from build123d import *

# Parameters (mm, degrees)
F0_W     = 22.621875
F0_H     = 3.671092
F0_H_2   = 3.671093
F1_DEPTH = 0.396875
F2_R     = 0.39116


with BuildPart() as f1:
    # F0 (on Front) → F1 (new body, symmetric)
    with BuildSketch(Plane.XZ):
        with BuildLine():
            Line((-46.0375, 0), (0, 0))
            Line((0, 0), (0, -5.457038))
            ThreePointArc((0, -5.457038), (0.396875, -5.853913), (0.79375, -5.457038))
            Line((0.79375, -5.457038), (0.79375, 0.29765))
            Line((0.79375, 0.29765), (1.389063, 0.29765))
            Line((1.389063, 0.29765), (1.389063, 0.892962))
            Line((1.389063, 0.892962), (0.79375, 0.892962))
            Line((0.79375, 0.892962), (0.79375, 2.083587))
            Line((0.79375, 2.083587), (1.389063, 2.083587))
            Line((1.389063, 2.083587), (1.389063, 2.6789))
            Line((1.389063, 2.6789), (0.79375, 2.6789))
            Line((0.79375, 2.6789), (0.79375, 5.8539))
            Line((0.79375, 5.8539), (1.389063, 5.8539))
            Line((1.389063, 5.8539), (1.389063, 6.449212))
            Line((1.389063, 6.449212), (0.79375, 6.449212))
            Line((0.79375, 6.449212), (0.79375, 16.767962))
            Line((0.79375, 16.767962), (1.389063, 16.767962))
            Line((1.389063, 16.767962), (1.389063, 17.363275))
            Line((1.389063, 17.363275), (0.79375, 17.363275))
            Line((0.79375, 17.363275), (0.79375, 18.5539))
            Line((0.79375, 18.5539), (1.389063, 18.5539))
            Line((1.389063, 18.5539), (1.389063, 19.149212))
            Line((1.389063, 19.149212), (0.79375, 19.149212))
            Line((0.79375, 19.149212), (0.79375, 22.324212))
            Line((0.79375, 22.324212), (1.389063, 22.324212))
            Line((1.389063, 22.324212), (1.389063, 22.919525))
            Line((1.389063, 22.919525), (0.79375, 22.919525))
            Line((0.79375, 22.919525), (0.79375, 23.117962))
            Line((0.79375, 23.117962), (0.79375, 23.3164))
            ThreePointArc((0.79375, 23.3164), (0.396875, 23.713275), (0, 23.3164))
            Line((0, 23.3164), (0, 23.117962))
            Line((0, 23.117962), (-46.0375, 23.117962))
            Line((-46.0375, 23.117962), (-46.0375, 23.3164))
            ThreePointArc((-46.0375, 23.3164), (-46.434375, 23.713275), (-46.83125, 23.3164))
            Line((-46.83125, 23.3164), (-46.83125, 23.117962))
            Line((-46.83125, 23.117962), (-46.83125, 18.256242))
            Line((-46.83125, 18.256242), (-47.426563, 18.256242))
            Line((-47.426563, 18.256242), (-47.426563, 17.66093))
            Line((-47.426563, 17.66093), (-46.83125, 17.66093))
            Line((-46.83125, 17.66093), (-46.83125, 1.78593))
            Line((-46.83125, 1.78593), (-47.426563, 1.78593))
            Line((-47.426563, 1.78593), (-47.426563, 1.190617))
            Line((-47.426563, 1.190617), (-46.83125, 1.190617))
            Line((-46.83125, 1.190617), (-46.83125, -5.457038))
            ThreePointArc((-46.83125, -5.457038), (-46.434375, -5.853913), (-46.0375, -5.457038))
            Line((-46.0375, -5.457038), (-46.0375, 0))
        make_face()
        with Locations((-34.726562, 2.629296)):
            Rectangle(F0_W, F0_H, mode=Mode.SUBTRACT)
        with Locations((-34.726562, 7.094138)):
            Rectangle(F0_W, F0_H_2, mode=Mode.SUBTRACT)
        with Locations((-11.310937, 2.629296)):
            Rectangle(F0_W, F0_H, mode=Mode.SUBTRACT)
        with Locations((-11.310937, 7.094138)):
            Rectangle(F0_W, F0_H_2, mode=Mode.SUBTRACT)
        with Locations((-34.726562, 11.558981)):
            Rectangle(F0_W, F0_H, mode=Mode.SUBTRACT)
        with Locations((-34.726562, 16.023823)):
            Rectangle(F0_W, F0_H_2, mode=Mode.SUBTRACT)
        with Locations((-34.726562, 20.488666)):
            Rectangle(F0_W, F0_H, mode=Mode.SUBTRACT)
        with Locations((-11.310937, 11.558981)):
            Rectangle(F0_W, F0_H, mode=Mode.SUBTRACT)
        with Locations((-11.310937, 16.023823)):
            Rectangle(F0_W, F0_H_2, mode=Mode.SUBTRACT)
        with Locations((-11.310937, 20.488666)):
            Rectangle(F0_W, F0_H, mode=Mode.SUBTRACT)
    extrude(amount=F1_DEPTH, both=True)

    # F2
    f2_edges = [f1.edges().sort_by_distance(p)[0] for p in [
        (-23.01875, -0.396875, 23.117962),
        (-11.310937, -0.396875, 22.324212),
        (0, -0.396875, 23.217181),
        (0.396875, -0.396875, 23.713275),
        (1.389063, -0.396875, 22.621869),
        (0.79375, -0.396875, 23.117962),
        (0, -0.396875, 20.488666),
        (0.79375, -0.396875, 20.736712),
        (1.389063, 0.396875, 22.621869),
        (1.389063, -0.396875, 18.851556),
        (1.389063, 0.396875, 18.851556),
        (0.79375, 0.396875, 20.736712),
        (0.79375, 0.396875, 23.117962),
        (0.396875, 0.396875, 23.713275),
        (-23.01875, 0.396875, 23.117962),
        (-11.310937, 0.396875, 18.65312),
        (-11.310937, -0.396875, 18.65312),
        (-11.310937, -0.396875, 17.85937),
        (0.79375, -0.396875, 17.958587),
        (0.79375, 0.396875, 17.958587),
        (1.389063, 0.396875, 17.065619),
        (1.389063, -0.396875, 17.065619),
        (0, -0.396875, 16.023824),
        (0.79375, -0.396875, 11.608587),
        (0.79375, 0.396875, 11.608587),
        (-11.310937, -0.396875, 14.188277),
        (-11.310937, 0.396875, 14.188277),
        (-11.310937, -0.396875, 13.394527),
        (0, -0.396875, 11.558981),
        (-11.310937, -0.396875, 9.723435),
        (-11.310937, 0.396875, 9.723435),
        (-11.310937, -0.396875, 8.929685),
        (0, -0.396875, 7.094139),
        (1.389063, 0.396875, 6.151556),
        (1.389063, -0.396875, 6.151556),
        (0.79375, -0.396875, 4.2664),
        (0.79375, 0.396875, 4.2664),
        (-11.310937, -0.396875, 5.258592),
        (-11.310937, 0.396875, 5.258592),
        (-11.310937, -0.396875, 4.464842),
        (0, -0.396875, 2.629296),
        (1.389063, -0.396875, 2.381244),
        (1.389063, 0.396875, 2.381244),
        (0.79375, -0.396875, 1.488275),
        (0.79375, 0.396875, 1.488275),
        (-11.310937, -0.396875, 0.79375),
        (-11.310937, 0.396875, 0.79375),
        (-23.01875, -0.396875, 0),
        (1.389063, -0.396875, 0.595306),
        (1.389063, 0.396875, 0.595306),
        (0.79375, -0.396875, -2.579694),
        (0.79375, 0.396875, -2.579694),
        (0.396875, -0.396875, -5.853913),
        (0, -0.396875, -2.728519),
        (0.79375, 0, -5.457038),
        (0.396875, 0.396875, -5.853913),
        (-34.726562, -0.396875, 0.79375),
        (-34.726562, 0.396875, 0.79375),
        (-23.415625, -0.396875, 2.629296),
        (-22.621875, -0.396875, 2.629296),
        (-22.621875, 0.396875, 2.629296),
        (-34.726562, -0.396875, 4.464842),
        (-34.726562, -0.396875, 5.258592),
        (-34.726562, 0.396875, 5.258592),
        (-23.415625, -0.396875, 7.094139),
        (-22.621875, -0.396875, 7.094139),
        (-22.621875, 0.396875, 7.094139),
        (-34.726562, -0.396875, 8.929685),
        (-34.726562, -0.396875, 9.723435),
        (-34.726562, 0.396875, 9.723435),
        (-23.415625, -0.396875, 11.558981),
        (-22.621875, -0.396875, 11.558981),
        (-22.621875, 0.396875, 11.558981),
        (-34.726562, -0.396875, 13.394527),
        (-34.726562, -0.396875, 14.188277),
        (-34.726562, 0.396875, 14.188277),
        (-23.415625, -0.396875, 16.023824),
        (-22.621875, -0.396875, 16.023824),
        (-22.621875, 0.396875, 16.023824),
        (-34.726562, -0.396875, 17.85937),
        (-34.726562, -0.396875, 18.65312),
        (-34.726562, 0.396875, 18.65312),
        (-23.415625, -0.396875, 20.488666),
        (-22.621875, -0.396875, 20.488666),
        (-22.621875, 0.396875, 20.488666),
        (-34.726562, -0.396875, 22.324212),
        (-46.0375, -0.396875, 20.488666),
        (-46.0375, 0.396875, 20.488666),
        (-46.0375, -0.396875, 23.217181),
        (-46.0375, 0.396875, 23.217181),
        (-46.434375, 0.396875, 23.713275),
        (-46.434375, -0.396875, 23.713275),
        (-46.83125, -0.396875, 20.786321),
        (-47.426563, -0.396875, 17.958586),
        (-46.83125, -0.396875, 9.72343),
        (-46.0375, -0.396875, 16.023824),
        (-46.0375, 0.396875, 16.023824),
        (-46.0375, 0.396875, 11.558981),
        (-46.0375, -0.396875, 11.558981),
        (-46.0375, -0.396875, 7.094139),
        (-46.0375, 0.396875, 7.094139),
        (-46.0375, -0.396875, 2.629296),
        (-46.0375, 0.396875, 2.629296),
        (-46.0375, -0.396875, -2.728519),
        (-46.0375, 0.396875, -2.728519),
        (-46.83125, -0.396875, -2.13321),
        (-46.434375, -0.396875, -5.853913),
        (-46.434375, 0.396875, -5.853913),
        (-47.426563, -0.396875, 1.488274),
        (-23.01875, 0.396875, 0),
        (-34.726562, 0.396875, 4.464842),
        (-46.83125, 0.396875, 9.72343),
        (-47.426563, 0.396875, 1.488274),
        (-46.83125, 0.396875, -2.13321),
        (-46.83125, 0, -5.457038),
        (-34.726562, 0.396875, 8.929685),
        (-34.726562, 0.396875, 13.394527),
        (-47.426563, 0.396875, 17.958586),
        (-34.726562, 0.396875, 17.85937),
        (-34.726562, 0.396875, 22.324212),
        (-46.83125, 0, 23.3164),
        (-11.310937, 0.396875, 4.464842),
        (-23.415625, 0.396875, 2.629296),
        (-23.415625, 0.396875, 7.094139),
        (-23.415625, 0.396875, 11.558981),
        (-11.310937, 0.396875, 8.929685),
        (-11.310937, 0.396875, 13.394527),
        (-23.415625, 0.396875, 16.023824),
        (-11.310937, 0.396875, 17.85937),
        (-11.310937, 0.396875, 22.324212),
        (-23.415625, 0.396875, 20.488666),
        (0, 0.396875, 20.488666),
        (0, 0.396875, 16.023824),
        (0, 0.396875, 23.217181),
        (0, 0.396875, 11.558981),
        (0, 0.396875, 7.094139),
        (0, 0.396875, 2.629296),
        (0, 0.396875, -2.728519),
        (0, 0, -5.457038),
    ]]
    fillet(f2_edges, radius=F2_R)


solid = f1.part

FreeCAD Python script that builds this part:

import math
import FreeCAD as App
import Part
import Sketcher
from FreeCAD import Vector
Q = App.Units.Quantity


def edges_at(feature, points):
    """Names of the edges that pass closest to the given points."""
    edges = feature.Shape.Edges
    near = lambda p: min(range(len(edges)), key=lambda i: edges[i].distToShape(Part.Vertex(*p))[0])
    return sorted({f"Edge{near(p) + 1}" for p in points})


def add_polygon(sketch, points):
    """Adds a closed chain of lines whose ends are joined by coincident constraints."""
    first, n = sketch.GeometryCount, len(points)
    for a, b in zip(points, points[1:] + points[:1]):
        sketch.addGeometry(Part.LineSegment(App.Vector(*a, 0), App.Vector(*b, 0)), False)
    for i in range(n):
        sketch.addConstraint(Sketcher.Constraint("Coincident", first + i, 2, first + (i + 1) % n, 1))

doc = App.newDocument("Part")
body = doc.addObject("PartDesign::Body", "Body")

# Sketch on XZ plane
sketch1 = doc.addObject("Sketcher::SketchObject", "Sketch")
body.addObject(sketch1)
sketch1.AttachmentSupport = (doc.XZ_Plane, [""])
sketch1.MapMode = "FlatFace"
sketch1.addGeometry(Part.LineSegment(Vector(-46.0375, 0, 0), Vector(0, 0, 0)), False)  # 0
sketch1.addGeometry(Part.LineSegment(Vector(0, 0, 0), Vector(0, -5.457038, 0)), False)  # 1
sketch1.addGeometry(Part.ArcOfCircle(Part.Circle(Vector(0.396875, -5.457038, 0), Vector(0, 0, 1), 0.396875), math.radians(180), math.radians(360)), False)  # 2
sketch1.addGeometry(Part.LineSegment(Vector(0.79375, -5.457038, 0), Vector(0.79375, 0.29765, 0)), False)  # 3
sketch1.addGeometry(Part.LineSegment(Vector(0.79375, 0.29765, 0), Vector(1.389063, 0.29765, 0)), False)  # 4
sketch1.addGeometry(Part.LineSegment(Vector(1.389063, 0.29765, 0), Vector(1.389063, 0.892962, 0)), False)  # 5
sketch1.addGeometry(Part.LineSegment(Vector(1.389063, 0.892962, 0), Vector(0.79375, 0.892962, 0)), False)  # 6
sketch1.addGeometry(Part.LineSegment(Vector(0.79375, 0.892962, 0), Vector(0.79375, 2.083587, 0)), False)  # 7
sketch1.addGeometry(Part.LineSegment(Vector(0.79375, 2.083587, 0), Vector(1.389063, 2.083587, 0)), False)  # 8
sketch1.addGeometry(Part.LineSegment(Vector(1.389063, 2.083587, 0), Vector(1.389063, 2.6789, 0)), False)  # 9
sketch1.addGeometry(Part.LineSegment(Vector(1.389063, 2.6789, 0), Vector(0.79375, 2.6789, 0)), False)  # 10
sketch1.addGeometry(Part.LineSegment(Vector(0.79375, 2.6789, 0), Vector(0.79375, 5.8539, 0)), False)  # 11
sketch1.addGeometry(Part.LineSegment(Vector(0.79375, 5.8539, 0), Vector(1.389063, 5.8539, 0)), False)  # 12
sketch1.addGeometry(Part.LineSegment(Vector(1.389063, 5.8539, 0), Vector(1.389063, 6.449212, 0)), False)  # 13
sketch1.addGeometry(Part.LineSegment(Vector(1.389063, 6.449212, 0), Vector(0.79375, 6.449212, 0)), False)  # 14
sketch1.addGeometry(Part.LineSegment(Vector(0.79375, 6.449212, 0), Vector(0.79375, 16.767962, 0)), False)  # 15
sketch1.addGeometry(Part.LineSegment(Vector(0.79375, 16.767962, 0), Vector(1.389063, 16.767962, 0)), False)  # 16
sketch1.addGeometry(Part.LineSegment(Vector(1.389063, 16.767962, 0), Vector(1.389063, 17.363275, 0)), False)  # 17
sketch1.addGeometry(Part.LineSegment(Vector(1.389063, 17.363275, 0), Vector(0.79375, 17.363275, 0)), False)  # 18
sketch1.addGeometry(Part.LineSegment(Vector(0.79375, 17.363275, 0), Vector(0.79375, 18.5539, 0)), False)  # 19
sketch1.addGeometry(Part.LineSegment(Vector(0.79375, 18.5539, 0), Vector(1.389063, 18.5539, 0)), False)  # 20
sketch1.addGeometry(Part.LineSegment(Vector(1.389063, 18.5539, 0), Vector(1.389063, 19.149212, 0)), False)  # 21
sketch1.addGeometry(Part.LineSegment(Vector(1.389063, 19.149212, 0), Vector(0.79375, 19.149212, 0)), False)  # 22
sketch1.addGeometry(Part.LineSegment(Vector(0.79375, 19.149212, 0), Vector(0.79375, 22.324212, 0)), False)  # 23
sketch1.addGeometry(Part.LineSegment(Vector(0.79375, 22.324212, 0), Vector(1.389063, 22.324212, 0)), False)  # 24
sketch1.addGeometry(Part.LineSegment(Vector(1.389063, 22.324212, 0), Vector(1.389063, 22.919525, 0)), False)  # 25
sketch1.addGeometry(Part.LineSegment(Vector(1.389063, 22.919525, 0), Vector(0.79375, 22.919525, 0)), False)  # 26
sketch1.addGeometry(Part.LineSegment(Vector(0.79375, 22.919525, 0), Vector(0.79375, 23.3164, 0)), False)  # 27
sketch1.addGeometry(Part.ArcOfCircle(Part.Circle(Vector(0.396875, 23.3164, 0), Vector(0, 0, 1), 0.396875), math.radians(0), math.radians(180)), False)  # 28
sketch1.addGeometry(Part.LineSegment(Vector(0, 23.3164, 0), Vector(0, 23.117962, 0)), False)  # 29
sketch1.addGeometry(Part.LineSegment(Vector(0, 23.117962, 0), Vector(-46.0375, 23.117962, 0)), False)  # 30
sketch1.addGeometry(Part.LineSegment(Vector(-46.0375, 23.117962, 0), Vector(-46.0375, 23.3164, 0)), False)  # 31
sketch1.addGeometry(Part.ArcOfCircle(Part.Circle(Vector(-46.434375, 23.3164, 0), Vector(0, 0, 1), 0.396875), math.radians(0), math.radians(180)), False)  # 32
sketch1.addGeometry(Part.LineSegment(Vector(-46.83125, 23.3164, 0), Vector(-46.83125, 18.256242, 0)), False)  # 33
sketch1.addGeometry(Part.LineSegment(Vector(-46.83125, 18.256242, 0), Vector(-47.426563, 18.256242, 0)), False)  # 34
sketch1.addGeometry(Part.LineSegment(Vector(-47.426563, 18.256242, 0), Vector(-47.426563, 17.66093, 0)), False)  # 35
sketch1.addGeometry(Part.LineSegment(Vector(-47.426563, 17.66093, 0), Vector(-46.83125, 17.66093, 0)), False)  # 36
sketch1.addGeometry(Part.LineSegment(Vector(-46.83125, 17.66093, 0), Vector(-46.83125, 1.78593, 0)), False)  # 37
sketch1.addGeometry(Part.LineSegment(Vector(-46.83125, 1.78593, 0), Vector(-47.426563, 1.78593, 0)), False)  # 38
sketch1.addGeometry(Part.LineSegment(Vector(-47.426563, 1.78593, 0), Vector(-47.426563, 1.190617, 0)), False)  # 39
sketch1.addGeometry(Part.LineSegment(Vector(-47.426563, 1.190617, 0), Vector(-46.83125, 1.190617, 0)), False)  # 40
sketch1.addGeometry(Part.LineSegment(Vector(-46.83125, 1.190617, 0), Vector(-46.83125, -5.457038, 0)), False)  # 41
sketch1.addGeometry(Part.ArcOfCircle(Part.Circle(Vector(-46.434375, -5.457038, 0), Vector(0, 0, 1), 0.396875), math.radians(180), math.radians(360)), False)  # 42
sketch1.addGeometry(Part.LineSegment(Vector(-46.0375, -5.457038, 0), Vector(-46.0375, 0, 0)), False)  # 43
add_polygon(sketch1, [(-23.415624, 0.79375), (-46.0375, 0.79375), (-46.0375, 4.464842), (-23.415624, 4.464842)])  # lines 44-47
add_polygon(sketch1, [(-23.415624, 5.258591), (-46.0375, 5.258591), (-46.0375, 8.929685), (-23.415624, 8.929685)])  # lines 48-51
add_polygon(sketch1, [(0, 0.79375), (-22.621875, 0.79375), (-22.621875, 4.464842), (0, 4.464842)])  # lines 52-55
add_polygon(sketch1, [(0, 5.258591), (-22.621875, 5.258591), (-22.621875, 8.929685), (0, 8.929685)])  # lines 56-59
add_polygon(sketch1, [(-23.415624, 9.723435), (-46.0375, 9.723435), (-46.0375, 13.394527), (-23.415624, 13.394527)])  # lines 60-63
add_polygon(sketch1, [(-23.415624, 14.188277), (-46.0375, 14.188277), (-46.0375, 17.859369), (-23.415624, 17.859369)])  # lines 64-67
add_polygon(sketch1, [(-23.415624, 18.65312), (-46.0375, 18.65312), (-46.0375, 22.324212), (-23.415624, 22.324212)])  # lines 68-71
add_polygon(sketch1, [(0, 9.723435), (-22.621875, 9.723435), (-22.621875, 13.394527), (0, 13.394527)])  # lines 72-75
add_polygon(sketch1, [(0, 14.188277), (-22.621875, 14.188277), (-22.621875, 17.859369), (0, 17.859369)])  # lines 76-79
add_polygon(sketch1, [(0, 18.65312), (-22.621875, 18.65312), (-22.621875, 22.324212), (0, 22.324212)])  # lines 80-83
sketch1.addConstraint([
    Sketcher.Constraint("Coincident", 0, 2, 1, 1),
    Sketcher.Constraint("Tangent", 1, 2, 2, 1),
    Sketcher.Constraint("Tangent", 2, 2, 3, 1),
    Sketcher.Constraint("Coincident", 3, 2, 4, 1),
    Sketcher.Constraint("Coincident", 4, 2, 5, 1),
    Sketcher.Constraint("Coincident", 5, 2, 6, 1),
    Sketcher.Constraint("Coincident", 6, 2, 7, 1),
    Sketcher.Constraint("Coincident", 7, 2, 8, 1),
    Sketcher.Constraint("Coincident", 8, 2, 9, 1),
    Sketcher.Constraint("Coincident", 9, 2, 10, 1),
    Sketcher.Constraint("Coincident", 10, 2, 11, 1),
    Sketcher.Constraint("Coincident", 11, 2, 12, 1),
    Sketcher.Constraint("Coincident", 12, 2, 13, 1),
    Sketcher.Constraint("Coincident", 13, 2, 14, 1),
    Sketcher.Constraint("Coincident", 14, 2, 15, 1),
    Sketcher.Constraint("Coincident", 15, 2, 16, 1),
    Sketcher.Constraint("Coincident", 16, 2, 17, 1),
    Sketcher.Constraint("Coincident", 17, 2, 18, 1),
    Sketcher.Constraint("Coincident", 18, 2, 19, 1),
    Sketcher.Constraint("Coincident", 19, 2, 20, 1),
    Sketcher.Constraint("Coincident", 20, 2, 21, 1),
    Sketcher.Constraint("Coincident", 21, 2, 22, 1),
    Sketcher.Constraint("Coincident", 22, 2, 23, 1),
    Sketcher.Constraint("Coincident", 23, 2, 24, 1),
    Sketcher.Constraint("Coincident", 24, 2, 25, 1),
    Sketcher.Constraint("Coincident", 25, 2, 26, 1),
    Sketcher.Constraint("Coincident", 26, 2, 27, 1),
    Sketcher.Constraint("Tangent", 27, 2, 28, 1),
    Sketcher.Constraint("Tangent", 28, 2, 29, 1),
    Sketcher.Constraint("Coincident", 29, 2, 30, 1),
    Sketcher.Constraint("Coincident", 30, 2, 31, 1),
    Sketcher.Constraint("Tangent", 31, 2, 32, 1),
    Sketcher.Constraint("Tangent", 32, 2, 33, 1),
    Sketcher.Constraint("Coincident", 33, 2, 34, 1),
    Sketcher.Constraint("Coincident", 34, 2, 35, 1),
    Sketcher.Constraint("Coincident", 35, 2, 36, 1),
    Sketcher.Constraint("Coincident", 36, 2, 37, 1),
    Sketcher.Constraint("Coincident", 37, 2, 38, 1),
    Sketcher.Constraint("Coincident", 38, 2, 39, 1),
    Sketcher.Constraint("Coincident", 39, 2, 40, 1),
    Sketcher.Constraint("Coincident", 40, 2, 41, 1),
    Sketcher.Constraint("Tangent", 41, 2, 42, 1),
    Sketcher.Constraint("Tangent", 42, 2, 43, 1),
    Sketcher.Constraint("Coincident", 43, 2, 0, 1),
    Sketcher.Constraint("Horizontal", 0),
    Sketcher.Constraint("Vertical", 1),
    Sketcher.Constraint("Vertical", 3),
    Sketcher.Constraint("Horizontal", 4),
    Sketcher.Constraint("Vertical", 5),
    Sketcher.Constraint("Horizontal", 6),
    Sketcher.Constraint("Vertical", 7),
    Sketcher.Constraint("Horizontal", 8),
    Sketcher.Constraint("Vertical", 9),
    Sketcher.Constraint("Horizontal", 10),
    Sketcher.Constraint("Vertical", 11),
    Sketcher.Constraint("Horizontal", 12),
    Sketcher.Constraint("Vertical", 13),
    Sketcher.Constraint("Horizontal", 14),
    Sketcher.Constraint("Vertical", 15),
    Sketcher.Constraint("Horizontal", 16),
    Sketcher.Constraint("Vertical", 17),
    Sketcher.Constraint("Horizontal", 18),
    Sketcher.Constraint("Vertical", 19),
    Sketcher.Constraint("Horizontal", 20),
    Sketcher.Constraint("Vertical", 21),
    Sketcher.Constraint("Horizontal", 22),
    Sketcher.Constraint("Vertical", 23),
    Sketcher.Constraint("Horizontal", 24),
    Sketcher.Constraint("Vertical", 25),
    Sketcher.Constraint("Horizontal", 26),
    Sketcher.Constraint("Vertical", 27),
    Sketcher.Constraint("Vertical", 29),
    Sketcher.Constraint("Horizontal", 30),
    Sketcher.Constraint("Vertical", 31),
    Sketcher.Constraint("Vertical", 33),
    Sketcher.Constraint("Horizontal", 34),
    Sketcher.Constraint("Vertical", 35),
    Sketcher.Constraint("Horizontal", 36),
    Sketcher.Constraint("Vertical", 37),
    Sketcher.Constraint("Horizontal", 38),
    Sketcher.Constraint("Vertical", 39),
    Sketcher.Constraint("Horizontal", 40),
    Sketcher.Constraint("Vertical", 41),
    Sketcher.Constraint("Vertical", 43),
    Sketcher.Constraint("Horizontal", 44),
    Sketcher.Constraint("Vertical", 45),
    Sketcher.Constraint("Horizontal", 46),
    Sketcher.Constraint("Vertical", 47),
    Sketcher.Constraint("Horizontal", 48),
    Sketcher.Constraint("Vertical", 49),
    Sketcher.Constraint("Horizontal", 50),
    Sketcher.Constraint("Vertical", 51),
    Sketcher.Constraint("Horizontal", 52),
    Sketcher.Constraint("Vertical", 53),
    Sketcher.Constraint("Horizontal", 54),
    Sketcher.Constraint("Vertical", 55),
    Sketcher.Constraint("Horizontal", 56),
    Sketcher.Constraint("Vertical", 57),
    Sketcher.Constraint("Horizontal", 58),
    Sketcher.Constraint("Vertical", 59),
    Sketcher.Constraint("Horizontal", 60),
    Sketcher.Constraint("Vertical", 61),
    Sketcher.Constraint("Horizontal", 62),
    Sketcher.Constraint("Vertical", 63),
    Sketcher.Constraint("Horizontal", 64),
    Sketcher.Constraint("Vertical", 65),
    Sketcher.Constraint("Horizontal", 66),
    Sketcher.Constraint("Vertical", 67),
    Sketcher.Constraint("Horizontal", 68),
    Sketcher.Constraint("Vertical", 69),
    Sketcher.Constraint("Horizontal", 70),
    Sketcher.Constraint("Vertical", 71),
    Sketcher.Constraint("Horizontal", 72),
    Sketcher.Constraint("Vertical", 73),
    Sketcher.Constraint("Horizontal", 74),
    Sketcher.Constraint("Vertical", 75),
    Sketcher.Constraint("Horizontal", 76),
    Sketcher.Constraint("Vertical", 77),
    Sketcher.Constraint("Horizontal", 78),
    Sketcher.Constraint("Vertical", 79),
    Sketcher.Constraint("Horizontal", 80),
    Sketcher.Constraint("Vertical", 81),
    Sketcher.Constraint("Horizontal", 82),
    Sketcher.Constraint("Vertical", 83),
    Sketcher.Constraint("Coincident", 0, 2, -1, 1),
    Sketcher.Constraint("Equal", 2, 28),
    Sketcher.Constraint("Equal", 28, 32),
    Sketcher.Constraint("Equal", 32, 42),
    Sketcher.Constraint("PointOnObject", 28, 2, -2),
    Sketcher.Constraint("PointOnObject", 54, 2, -2),
    Sketcher.Constraint("PointOnObject", 58, 2, -2),
    Sketcher.Constraint("PointOnObject", 74, 2, -2),
    Sketcher.Constraint("PointOnObject", 78, 2, -2),
    Sketcher.Constraint("PointOnObject", 82, 2, -2),
    Sketcher.Constraint("Horizontal", 28, 3, 32, 3),
    Sketcher.Constraint("Horizontal", 2, 3, 42, 3),
    Sketcher.Constraint("Horizontal", 47, 2, 52, 2),
    Sketcher.Constraint("Horizontal", 46, 2, 53, 2),
    Sketcher.Constraint("Horizontal", 51, 2, 56, 2),
    Sketcher.Constraint("Horizontal", 50, 2, 57, 2),
    Sketcher.Constraint("Horizontal", 24, 2, 69, 2),
    Sketcher.Constraint("Horizontal", 63, 2, 72, 2),
    Sketcher.Constraint("Horizontal", 62, 2, 73, 2),
    Sketcher.Constraint("Horizontal", 67, 2, 76, 2),
    Sketcher.Constraint("Horizontal", 66, 2, 77, 2),
    Sketcher.Constraint("Horizontal", 71, 2, 80, 2),
    Sketcher.Constraint("Horizontal", 70, 2, 81, 2),
    Sketcher.Constraint("Vertical", 32, 3, 42, 3),
    Sketcher.Constraint("Vertical", 3, 2, 6, 2),
    Sketcher.Constraint("Vertical", 5, 2, 8, 2),
    Sketcher.Constraint("Vertical", 7, 2, 10, 2),
    Sketcher.Constraint("Vertical", 9, 2, 12, 2),
    Sketcher.Constraint("Vertical", 11, 2, 14, 2),
    Sketcher.Constraint("Vertical", 13, 2, 16, 2),
    Sketcher.Constraint("Vertical", 15, 2, 18, 2),
    Sketcher.Constraint("Vertical", 17, 2, 20, 2),
    Sketcher.Constraint("Vertical", 19, 2, 22, 2),
    Sketcher.Constraint("Vertical", 21, 2, 24, 2),
    Sketcher.Constraint("Vertical", 33, 2, 36, 2),
    Sketcher.Constraint("Vertical", 35, 2, 38, 2),
    Sketcher.Constraint("Vertical", 43, 2, 44, 2),
    Sketcher.Constraint("Vertical", 45, 2, 48, 2),
    Sketcher.Constraint("Vertical", 47, 2, 50, 2),
    Sketcher.Constraint("Vertical", 53, 2, 56, 2),
    Sketcher.Constraint("Vertical", 49, 2, 60, 2),
    Sketcher.Constraint("Vertical", 51, 2, 62, 2),
    Sketcher.Constraint("Vertical", 61, 2, 64, 2),
    Sketcher.Constraint("Vertical", 63, 2, 66, 2),
    Sketcher.Constraint("Vertical", 65, 2, 68, 2),
    Sketcher.Constraint("Vertical", 67, 2, 70, 2),
    Sketcher.Constraint("Vertical", 57, 2, 72, 2),
    Sketcher.Constraint("Vertical", 73, 2, 76, 2),
    Sketcher.Constraint("Vertical", 77, 2, 80, 2),
    Sketcher.Constraint("Equal", 26, 34),
    Sketcher.Constraint("Equal", 50, 52),
    Sketcher.Constraint("Equal", 40, 5),
    Sketcher.Constraint("Equal", 5, 9),
    Sketcher.Constraint("Equal", 9, 13),
    Sketcher.Constraint("Equal", 13, 17),
    Sketcher.Constraint("Equal", 7, 19),
    Sketcher.Constraint("Equal", 17, 21),
    Sketcher.Constraint("Equal", 11, 23),
    Sketcher.Constraint("Equal", 21, 25),
    Sketcher.Constraint("Equal", 25, 35),
    Sketcher.Constraint("Equal", 35, 39),
    Sketcher.Constraint("Equal", 47, 49),
    Sketcher.Constraint("Equal", 59, 61),
    Sketcher.Constraint("Equal", 63, 65),
    Sketcher.Constraint("Equal", 67, 69),
    Sketcher.Constraint("Radius", 2, Q("0.015625 in")),
    Sketcher.Constraint("DistanceX", 0, 1, 0, 2, Q("1.8125 in")),
    Sketcher.Constraint("DistanceX", 44, 2, 44, 1, Q("0.890625 in")),
    Sketcher.Constraint("DistanceY", 7, 1, 7, 2, Q("0.046875 in")),
    Sketcher.Constraint("DistanceY", 11, 1, 11, 2, Q("0.125 in")),
    Sketcher.Constraint("DistanceY", 15, 1, 15, 2, Q("0.40625 in")),
    Sketcher.Constraint("DistanceY", 27, 1, 27, 2, Q("0.015625 in")),
    Sketcher.Constraint("DistanceY", 37, 2, 37, 1, Q("0.625 in")),
    Sketcher.Constraint("DistanceY", -1, 1, 44, 2, Q("0.03125 in")),
    Sketcher.Constraint("DistanceY", 13, 1, 13, 2, Q("0.595312 mm")),
    Sketcher.Constraint("DistanceY", 29, 2, 29, 1, Q("0.198438 mm")),
    Sketcher.Constraint("DistanceY", 33, 2, 33, 1, Q("5.060158 mm")),
    Sketcher.Constraint("DistanceY", 45, 1, 45, 2, Q("3.671092 mm")),
    Sketcher.Constraint("DistanceY", -1, 1, 28, 3, Q("23.3164 mm")),
    Sketcher.Constraint("DistanceY", 1, 2, 1, 1, Q("5.457038 mm")),
    Sketcher.Constraint("DistanceY", -1, 1, 48, 2, Q("5.258591 mm")),
    Sketcher.Constraint("DistanceY", -1, 1, 65, 2, Q("17.859369 mm")),
    Sketcher.Constraint("DistanceY", -1, 1, 60, 2, Q("9.723435 mm")),
])
pad1 = doc.addObject("PartDesign::Pad", "Pad")
body.addObject(pad1)
pad1.Profile = sketch1
pad1.Length = Q("0.03125 in")
pad1.Midplane = True
doc.recompute()

fillet = doc.addObject("PartDesign::Fillet", "Fillet")
body.addObject(fillet)
fillet.Base = (pad1, edges_at(pad1, [
    (-23.019, -0.397, 23.118),
    (-11.311, -0.397, 22.324),
    (0, -0.397, 23.217),
    (0.397, -0.397, 23.713),
    (1.389, -0.397, 22.622),
    (0.794, -0.397, 23.118),
    (0, -0.397, 20.489),
    (0.794, -0.397, 20.737),
    (1.389, 0.397, 22.622),
    (1.389, -0.397, 18.852),
    (1.389, 0.397, 18.852),
    (0.794, 0.397, 20.737),
    (0.794, 0.397, 23.118),
    (0.397, 0.397, 23.713),
    (-23.019, 0.397, 23.118),
    (-11.311, 0.397, 18.653),
    (-11.311, -0.397, 18.653),
    (-11.311, -0.397, 17.859),
    (0.794, -0.397, 17.959),
    (0.794, 0.397, 17.959),
    (1.389, 0.397, 17.066),
    (1.389, -0.397, 17.066),
    (0, -0.397, 16.024),
    (0.794, -0.397, 11.609),
    (0.794, 0.397, 11.609),
    (-11.311, -0.397, 14.188),
    (-11.311, 0.397, 14.188),
    (-11.311, -0.397, 13.395),
    (0, -0.397, 11.559),
    (-11.311, -0.397, 9.723),
    (-11.311, 0.397, 9.723),
    (-11.311, -0.397, 8.93),
    (0, -0.397, 7.094),
    (1.389, 0.397, 6.152),
    (1.389, -0.397, 6.152),
    (0.794, -0.397, 4.266),
    (0.794, 0.397, 4.266),
    (-11.311, -0.397, 5.259),
    (-11.311, 0.397, 5.259),
    (-11.311, -0.397, 4.465),
    (0, -0.397, 2.629),
    (1.389, -0.397, 2.381),
    (1.389, 0.397, 2.381),
    (0.794, -0.397, 1.488),
    (0.794, 0.397, 1.488),
    (-11.311, -0.397, 0.794),
    (-11.311, 0.397, 0.794),
    (-23.019, -0.397, 0),
    (1.389, -0.397, 0.595),
    (1.389, 0.397, 0.595),
    (0.794, -0.397, -2.58),
    (0.794, 0.397, -2.58),
    (0.397, -0.397, -5.854),
    (0, -0.397, -2.729),
    (0.794, 0, -5.457),
    (0.397, 0.397, -5.854),
    (-34.727, -0.397, 0.794),
    (-34.727, 0.397, 0.794),
    (-23.416, -0.397, 2.629),
    (-22.622, -0.397, 2.629),
    (-22.622, 0.397, 2.629),
    (-34.727, -0.397, 4.465),
    (-34.727, -0.397, 5.259),
    (-34.727, 0.397, 5.259),
    (-23.416, -0.397, 7.094),
    (-22.622, -0.397, 7.094),
    (-22.622, 0.397, 7.094),
    (-34.727, -0.397, 8.93),
    (-34.727, -0.397, 9.723),
    (-34.727, 0.397, 9.723),
    (-23.416, -0.397, 11.559),
    (-22.622, -0.397, 11.559),
    (-22.622, 0.397, 11.559),
    (-34.727, -0.397, 13.395),
    (-34.727, -0.397, 14.188),
    (-34.727, 0.397, 14.188),
    (-23.416, -0.397, 16.024),
    (-22.622, -0.397, 16.024),
    (-22.622, 0.397, 16.024),
    (-34.727, -0.397, 17.859),
    (-34.727, -0.397, 18.653),
    (-34.727, 0.397, 18.653),
    (-23.416, -0.397, 20.489),
    (-22.622, -0.397, 20.489),
    (-22.622, 0.397, 20.489),
    (-34.727, -0.397, 22.324),
    (-46.037, -0.397, 20.489),
    (-46.037, 0.397, 20.489),
    (-46.038, -0.397, 23.217),
    (-46.038, 0.397, 23.217),
    (-46.434, 0.397, 23.713),
    (-46.434, -0.397, 23.713),
    (-46.831, -0.397, 20.786),
    (-47.427, -0.397, 17.959),
    (-46.831, -0.397, 9.723),
    (-46.037, -0.397, 16.024),
    (-46.037, 0.397, 16.024),
    (-46.037, 0.397, 11.559),
    (-46.037, -0.397, 11.559),
    (-46.037, -0.397, 7.094),
    (-46.037, 0.397, 7.094),
    (-46.037, -0.397, 2.629),
    (-46.037, 0.397, 2.629),
    (-46.038, -0.397, -2.729),
    (-46.038, 0.397, -2.729),
    (-46.831, -0.397, -2.133),
    (-46.434, -0.397, -5.854),
    (-46.434, 0.397, -5.854),
    (-47.427, -0.397, 1.488),
    (-23.019, 0.397, 0),
    (-34.727, 0.397, 4.465),
    (-46.831, 0.397, 9.723),
    (-47.427, 0.397, 1.488),
    (-46.831, 0.397, -2.133),
    (-46.831, 0, -5.457),
    (-34.727, 0.397, 8.93),
    (-34.727, 0.397, 13.395),
    (-47.427, 0.397, 17.959),
    (-34.727, 0.397, 17.859),
    (-34.727, 0.397, 22.324),
    (-46.831, 0, 23.316),
    (-11.311, 0.397, 4.465),
    (-23.416, 0.397, 2.629),
    (-23.416, 0.397, 7.094),
    (-23.416, 0.397, 11.559),
    (-11.311, 0.397, 8.93),
    (-11.311, 0.397, 13.395),
    (-23.416, 0.397, 16.024),
    (-11.311, 0.397, 17.859),
    (-11.311, 0.397, 22.324),
    (-23.416, 0.397, 20.489),
    (0, 0.397, 20.489),
    (0, 0.397, 16.024),
    (0, 0.397, 23.217),
    (0, 0.397, 11.559),
    (0, 0.397, 7.094),
    (0, 0.397, 2.629),
    (0, 0.397, -2.729),
    (0, 0, -5.457),
]))
fillet.Radius = Q("0.0154 in")

doc.recompute()
